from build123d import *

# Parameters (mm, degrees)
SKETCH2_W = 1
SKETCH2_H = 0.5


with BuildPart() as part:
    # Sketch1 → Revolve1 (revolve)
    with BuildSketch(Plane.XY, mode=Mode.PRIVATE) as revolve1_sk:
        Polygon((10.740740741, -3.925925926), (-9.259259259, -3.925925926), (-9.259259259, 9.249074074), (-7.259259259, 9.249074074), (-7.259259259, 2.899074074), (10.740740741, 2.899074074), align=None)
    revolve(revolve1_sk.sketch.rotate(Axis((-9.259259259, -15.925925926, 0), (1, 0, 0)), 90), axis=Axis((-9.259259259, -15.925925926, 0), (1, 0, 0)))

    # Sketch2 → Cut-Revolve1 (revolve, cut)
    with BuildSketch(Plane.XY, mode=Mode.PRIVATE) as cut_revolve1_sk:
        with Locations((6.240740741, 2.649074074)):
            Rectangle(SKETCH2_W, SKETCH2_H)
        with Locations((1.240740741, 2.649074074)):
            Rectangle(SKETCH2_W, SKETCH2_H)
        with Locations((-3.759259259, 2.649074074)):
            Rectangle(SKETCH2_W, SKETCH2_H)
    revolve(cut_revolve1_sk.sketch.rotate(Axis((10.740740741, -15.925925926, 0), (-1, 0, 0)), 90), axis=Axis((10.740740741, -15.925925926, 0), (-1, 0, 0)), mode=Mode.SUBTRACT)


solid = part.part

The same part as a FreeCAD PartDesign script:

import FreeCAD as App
import Part
import Sketcher
from FreeCAD import Vector
Q = App.Units.Quantity


def add_polygon(sketch, points):
    """Adds a closed chain of lines whose ends are joined by coincident constraints."""
    first, n = sketch.GeometryCount, len(points)
    for a, b in zip(points, points[1:] + points[:1]):
        sketch.addGeometry(Part.LineSegment(App.Vector(*a, 0), App.Vector(*b, 0)), False)
    for i in range(n):
        sketch.addConstraint(Sketcher.Constraint("Coincident", first + i, 2, first + (i + 1) % n, 1))

doc = App.newDocument("Part")
body = doc.addObject("PartDesign::Body", "Body")

# Sketch on XY plane
sketch1 = body.newObject("Sketcher::SketchObject", "Sketch")
sketch1.AttachmentSupport = (doc.getObject("XY_Plane"), [""])
sketch1.MapMode = "FlatFace"
add_polygon(sketch1, [(-9.3, -3.9), (10.7, -3.9), (10.7, 2.9), (-7.3, 2.9), (-7.3, 9.2), (-9.3, 9.2)])  # lines 0-5
sketch1.addGeometry(Part.LineSegment(Vector(-9.3, -15.9, 0), Vector(10.7, -15.9, 0)), True)  # axis
sketch1.addConstraint(Sketcher.Constraint("Horizontal", 0))
sketch1.addConstraint(Sketcher.Constraint("Vertical", 1))
sketch1.addConstraint(Sketcher.Constraint("Horizontal", 2))
sketch1.addConstraint(Sketcher.Constraint("Vertical", 3))
sketch1.addConstraint(Sketcher.Constraint("Horizontal", 4))
sketch1.addConstraint(Sketcher.Constraint("Vertical", 5))
sketch1.addConstraint(Sketcher.Constraint("Horizontal", 6))
sketch1.addConstraint(Sketcher.Constraint("Vertical", 5, 2, 6, 1))
sketch1.addConstraint(Sketcher.Constraint("Vertical", 1, 2, 6, 2))
sketch1.addConstraint(Sketcher.Constraint("DistanceX", 0, 1, 0, 2, Q("20 mm")))
sketch1.addConstraint(Sketcher.Constraint("DistanceX", 2, 2, 2, 1, Q("18 mm")))
sketch1.addConstraint(Sketcher.Constraint("DistanceY", 6, 1, 5, 2, Q("12 mm")))
sketch1.addConstraint(Sketcher.Constraint("DistanceY", 3, 1, 3, 2, Q("6.35 mm")))
sketch1.addConstraint(Sketcher.Constraint("DistanceY", 1, 1, 1, 2, Q("6.825 mm")))
sketch1.addConstraint(Sketcher.Constraint("DistanceX", -1, 1, 0, 2, Q("10.740741 mm")))
sketch1.addConstraint(Sketcher.Constraint("DistanceY", 0, 2, -1, 1, Q("3.925926 mm")))
revolution = body.newObject("PartDesign::Revolution", "Revolution")
revolution.Profile = sketch1
revolution.ReferenceAxis = (sketch1, ["Axis0"])
revolution.Angle = 360

# Sketch on XY plane
sketch2 = body.newObject("Sketcher::SketchObject", "Sketch001")
sketch2.AttachmentSupport = (doc.getObject("XY_Plane"), [""])
sketch2.MapMode = "FlatFace"
add_polygon(sketch2, [(5.7, 2.9), (5.7, 2.4), (6.7, 2.4), (6.7, 2.9)])  # lines 0-3
add_polygon(sketch2, [(0.7, 2.9), (0.7, 2.4), (1.7, 2.4), (1.7, 2.9)])  # lines 4-7
add_polygon(sketch2, [(-4.3, 2.9), (-4.3, 2.4), (-3.3, 2.4), (-3.3, 2.9)])  # lines 8-11
sketch2.addGeometry(Part.LineSegment(Vector(6.7, -15.9, 0), Vector(-4.3, -15.9, 0)), True)  # axis
sketch2.addConstraint(Sketcher.Constraint("Vertical", 0))
sketch2.addConstraint(Sketcher.Constraint("Horizontal", 1))
sketch2.addConstraint(Sketcher.Constraint("Vertical", 2))
sketch2.addConstraint(Sketcher.Constraint("Horizontal", 3))
sketch2.addConstraint(Sketcher.Constraint("Vertical", 4))
sketch2.addConstraint(Sketcher.Constraint("Horizontal", 5))
sketch2.addConstraint(Sketcher.Constraint("Vertical", 6))
sketch2.addConstraint(Sketcher.Constraint("Horizontal", 7))
sketch2.addConstraint(Sketcher.Constraint("Vertical", 8))
sketch2.addConstraint(Sketcher.Constraint("Horizontal", 9))
sketch2.addConstraint(Sketcher.Constraint("Vertical", 10))
sketch2.addConstraint(Sketcher.Constraint("Horizontal", 11))
sketch2.addConstraint(Sketcher.Constraint("Horizontal", 12))
sketch2.addConstraint(Sketcher.Constraint("Horizontal", 1, 2, 4, 2))
sketch2.addConstraint(Sketcher.Constraint("Horizontal", 3, 2, 6, 2))
sketch2.addConstraint(Sketcher.Constraint("Horizontal", 5, 2, 8, 2))
sketch2.addConstraint(Sketcher.Constraint("Horizontal", 7, 2, 10, 2))
sketch2.addConstraint(Sketcher.Constraint("Vertical", 2, 2, 12, 1))
sketch2.addConstraint(Sketcher.Constraint("Vertical", 11, 2, 12, 2))
sketch2.addConstraint(Sketcher.Constraint("Equal", 3, 5))
sketch2.addConstraint(Sketcher.Constraint("Equal", 7, 9))
sketch2.addConstraint(Sketcher.Constraint("DistanceX", 1, 1, 1, 2, Q("1 mm")))
sketch2.addConstraint(Sketcher.Constraint("DistanceX", 12, 2, 12, 1, Q("11 mm")))
sketch2.addConstraint(Sketcher.Constraint("DistanceY", 0, 2, 0, 1, Q("0.5 mm")))
sketch2.addConstraint(Sketcher.Constraint("DistanceX", 4, 2, 0, 2, Q("5 mm")))
sketch2.addConstraint(Sketcher.Constraint("DistanceY", 12, 1, 1, 2, Q("18.325 mm")))
sketch2.addConstraint(Sketcher.Constraint("DistanceX", -1, 1, 0, 2, Q("5.740741 mm")))
sketch2.addConstraint(Sketcher.Constraint("DistanceY", -1, 1, 0, 2, Q("2.399074 mm")))
groove = body.newObject("PartDesign::Groove", "Groove")
groove.Profile = sketch2
groove.ReferenceAxis = (sketch2, ["Axis0"])
groove.Angle = 360

doc.recompute()
